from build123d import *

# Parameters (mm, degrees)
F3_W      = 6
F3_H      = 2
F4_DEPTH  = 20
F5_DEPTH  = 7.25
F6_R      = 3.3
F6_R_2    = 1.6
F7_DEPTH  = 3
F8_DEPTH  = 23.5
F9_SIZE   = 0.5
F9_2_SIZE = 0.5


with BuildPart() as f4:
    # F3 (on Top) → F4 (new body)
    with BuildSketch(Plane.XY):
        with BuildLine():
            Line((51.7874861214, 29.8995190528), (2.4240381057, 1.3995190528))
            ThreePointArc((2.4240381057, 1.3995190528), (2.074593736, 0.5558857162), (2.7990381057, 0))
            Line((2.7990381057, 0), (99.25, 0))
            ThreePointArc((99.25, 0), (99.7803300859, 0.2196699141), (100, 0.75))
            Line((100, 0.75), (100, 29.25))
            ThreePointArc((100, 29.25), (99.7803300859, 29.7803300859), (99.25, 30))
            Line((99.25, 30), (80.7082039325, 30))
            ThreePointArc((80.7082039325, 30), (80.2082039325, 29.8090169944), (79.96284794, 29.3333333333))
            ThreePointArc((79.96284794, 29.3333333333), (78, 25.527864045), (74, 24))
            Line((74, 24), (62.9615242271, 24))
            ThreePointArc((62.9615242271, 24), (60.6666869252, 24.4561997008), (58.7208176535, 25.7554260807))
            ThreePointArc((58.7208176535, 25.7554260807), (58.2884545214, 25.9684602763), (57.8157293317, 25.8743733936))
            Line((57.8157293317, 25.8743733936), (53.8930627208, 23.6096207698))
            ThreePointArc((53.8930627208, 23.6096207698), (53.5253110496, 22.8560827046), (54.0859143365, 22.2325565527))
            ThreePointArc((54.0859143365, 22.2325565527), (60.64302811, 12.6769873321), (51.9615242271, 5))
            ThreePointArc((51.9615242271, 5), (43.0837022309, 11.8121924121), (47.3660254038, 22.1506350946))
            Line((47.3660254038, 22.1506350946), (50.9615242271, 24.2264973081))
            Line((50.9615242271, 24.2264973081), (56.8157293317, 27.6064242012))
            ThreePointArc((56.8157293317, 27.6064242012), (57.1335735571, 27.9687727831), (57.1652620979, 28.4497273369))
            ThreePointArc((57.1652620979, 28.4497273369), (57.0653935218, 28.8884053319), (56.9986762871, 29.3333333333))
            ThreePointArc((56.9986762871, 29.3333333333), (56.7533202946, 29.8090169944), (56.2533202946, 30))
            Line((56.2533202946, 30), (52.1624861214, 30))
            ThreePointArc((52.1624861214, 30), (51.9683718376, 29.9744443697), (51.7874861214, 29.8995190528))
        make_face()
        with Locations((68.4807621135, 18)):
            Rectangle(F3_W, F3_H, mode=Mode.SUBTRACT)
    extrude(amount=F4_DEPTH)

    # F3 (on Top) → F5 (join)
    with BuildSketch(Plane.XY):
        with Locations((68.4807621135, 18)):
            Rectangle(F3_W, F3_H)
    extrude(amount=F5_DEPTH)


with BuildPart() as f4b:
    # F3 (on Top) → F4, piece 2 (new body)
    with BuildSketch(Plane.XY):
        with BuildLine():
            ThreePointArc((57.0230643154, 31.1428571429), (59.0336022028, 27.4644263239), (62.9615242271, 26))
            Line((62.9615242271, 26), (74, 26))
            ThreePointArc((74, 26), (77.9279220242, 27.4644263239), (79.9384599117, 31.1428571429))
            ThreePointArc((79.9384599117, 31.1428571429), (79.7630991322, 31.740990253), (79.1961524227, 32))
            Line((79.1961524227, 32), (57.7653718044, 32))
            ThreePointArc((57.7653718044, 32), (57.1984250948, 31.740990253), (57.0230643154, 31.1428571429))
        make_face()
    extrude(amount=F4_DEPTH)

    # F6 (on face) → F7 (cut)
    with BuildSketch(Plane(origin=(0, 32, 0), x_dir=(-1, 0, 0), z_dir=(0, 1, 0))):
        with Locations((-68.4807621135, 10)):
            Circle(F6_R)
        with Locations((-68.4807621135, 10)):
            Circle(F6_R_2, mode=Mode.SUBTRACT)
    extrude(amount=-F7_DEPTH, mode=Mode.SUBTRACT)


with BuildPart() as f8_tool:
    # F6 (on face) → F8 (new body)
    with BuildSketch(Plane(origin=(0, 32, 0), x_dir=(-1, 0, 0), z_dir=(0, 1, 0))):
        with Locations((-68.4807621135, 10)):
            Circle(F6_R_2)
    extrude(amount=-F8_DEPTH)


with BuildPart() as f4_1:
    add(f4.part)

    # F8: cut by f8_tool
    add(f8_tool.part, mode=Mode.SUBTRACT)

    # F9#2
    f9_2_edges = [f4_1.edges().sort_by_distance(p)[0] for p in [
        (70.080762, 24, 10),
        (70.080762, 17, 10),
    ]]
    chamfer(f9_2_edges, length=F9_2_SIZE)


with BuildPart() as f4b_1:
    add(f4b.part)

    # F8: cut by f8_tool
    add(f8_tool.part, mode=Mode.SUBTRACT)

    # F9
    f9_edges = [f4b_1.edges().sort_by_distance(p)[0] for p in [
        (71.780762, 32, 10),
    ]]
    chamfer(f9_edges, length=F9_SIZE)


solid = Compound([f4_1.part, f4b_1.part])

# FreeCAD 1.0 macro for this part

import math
import FreeCAD as App
import Part
import Sketcher
Q = App.Units.Quantity


def edges_at(feature, points):
    """Names of the edges that pass closest to the given points."""
    edges = feature.Shape.Edges
    near = lambda p: min(range(len(edges)), key=lambda i: edges[i].distToShape(Part.Vertex(*p))[0])
    return sorted({f"Edge{near(p) + 1}" for p in points})

doc = App.newDocument("Part")
body = doc.addObject("PartDesign::Body", "Body")

# Sketch on XY plane
sketch1 = body.newObject("Sketcher::SketchObject", "Sketch")
sketch1.AttachmentSupport = (doc.getObject("XY_Plane"), [""])
sketch1.MapMode = "FlatFace"
sketch1.addGeometry([
    Part.LineSegment(App.Vector(51.79, 29.9, 0), App.Vector(2.42, 1.4, 0)),  # 0
    Part.ArcOfCircle(Part.Circle(App.Vector(2.8, 0.75, 0), App.Vector(0, 0, 1), 0.75), math.radians(120), math.radians(270)),  # 1
    Part.LineSegment(App.Vector(2.8, 0, 0), App.Vector(99.25, 0, 0)),  # 2
    Part.ArcOfCircle(Part.Circle(App.Vector(99.25, 0.75, 0), App.Vector(0, 0, 1), 0.75), math.radians(-90), math.radians(0)),  # 3
    Part.LineSegment(App.Vector(100, 0.75, 0), App.Vector(100, 29.25, 0)),  # 4
    Part.ArcOfCircle(Part.Circle(App.Vector(99.25, 29.25, 0), App.Vector(0, 0, 1), 0.75), math.radians(0), math.radians(90)),  # 5
    Part.LineSegment(App.Vector(99.25, 30, 0), App.Vector(80.71, 30, 0)),  # 6
    Part.ArcOfCircle(Part.Circle(App.Vector(80.71, 29.25, 0), App.Vector(0, 0, 1), 0.75), math.radians(90), math.radians(174)),  # 7
    Part.ArcOfCircle(Part.Circle(App.Vector(74, 30, 0), App.Vector(0, 0, 1), 6), math.radians(-90), math.radians(-6)),  # 8
    Part.LineSegment(App.Vector(74, 24, 0), App.Vector(62.96, 24, 0)),  # 9
    Part.ArcOfCircle(Part.Circle(App.Vector(62.96, 30, 0), App.Vector(0, 0, 1), 6), math.radians(-135), math.radians(-90)),  # 10
    Part.ArcOfCircle(Part.Circle(App.Vector(58.19, 25.22, 0), App.Vector(0, 0, 1), 0.75), math.radians(45), math.radians(120)),  # 11
    Part.LineSegment(App.Vector(57.82, 25.87, 0), App.Vector(53.89, 23.61, 0)),  # 12
    Part.ArcOfCircle(Part.Circle(App.Vector(54.27, 22.96, 0), App.Vector(0, 0, 1), 0.75), math.radians(120), math.radians(256)),  # 13
    Part.ArcOfCircle(Part.Circle(App.Vector(51.96, 13.75, 0), App.Vector(0, 0, 1), 8.75), math.radians(-90), math.radians(76)),  # 14
    Part.ArcOfCircle(Part.Circle(App.Vector(51.96, 14.19, 0), App.Vector(0, 0, 1), 9.19), math.radians(120), math.radians(270)),  # 15
    Part.LineSegment(App.Vector(47.37, 22.15, 0), App.Vector(50.96, 24.23, 0)),  # 16
    Part.LineSegment(App.Vector(50.96, 24.23, 0), App.Vector(56.82, 27.61, 0)),  # 17
    Part.ArcOfCircle(Part.Circle(App.Vector(56.44, 28.26, 0), App.Vector(0, 0, 1), 0.75), math.radians(-60), math.radians(15)),  # 18
    Part.ArcOfCircle(Part.Circle(App.Vector(62.96, 30, 0), App.Vector(0, 0, 1), 6), math.radians(-173.62), math.radians(-165.03)),  # 19
    Part.ArcOfCircle(Part.Circle(App.Vector(56.25, 29.25, 0), App.Vector(0, 0, 1), 0.75), math.radians(6), math.radians(90)),  # 20
    Part.LineSegment(App.Vector(56.25, 30, 0), App.Vector(52.16, 30, 0)),  # 21
    Part.ArcOfCircle(Part.Circle(App.Vector(52.16, 29.25, 0), App.Vector(0, 0, 1), 0.75), math.radians(90), math.radians(120)),  # 22
    Part.LineSegment(App.Vector(71.48, 17, 0), App.Vector(65.48, 17, 0)),  # 23
    Part.LineSegment(App.Vector(65.48, 17, 0), App.Vector(65.48, 19, 0)),  # 24
    Part.LineSegment(App.Vector(65.48, 19, 0), App.Vector(71.48, 19, 0)),  # 25
    Part.LineSegment(App.Vector(71.48, 19, 0), App.Vector(71.48, 17, 0)),  # 26
], False)
sketch1.addConstraint([
    Sketcher.Constraint("Tangent", 0, 2, 1, 1),
    Sketcher.Constraint("Tangent", 1, 2, 2, 1),
    Sketcher.Constraint("Tangent", 2, 2, 3, 1),
    Sketcher.Constraint("Tangent", 3, 2, 4, 1),
    Sketcher.Constraint("Tangent", 4, 2, 5, 1),
    Sketcher.Constraint("Tangent", 5, 2, 6, 1),
    Sketcher.Constraint("Tangent", 6, 2, 7, 1),
    Sketcher.Constraint("Tangent", 7, 2, 8, 2),
    Sketcher.Constraint("Tangent", 8, 1, 9, 1),
    Sketcher.Constraint("Tangent", 9, 2, 10, 2),
    Sketcher.Constraint("Tangent", 10, 1, 11, 1),
    Sketcher.Constraint("Tangent", 11, 2, 12, 1),
    Sketcher.Constraint("Tangent", 12, 2, 13, 1),
    Sketcher.Constraint("Tangent", 13, 2, 14, 2),
    Sketcher.Constraint("Tangent", 14, 1, 15, 2),
    Sketcher.Constraint("Tangent", 15, 1, 16, 1),
    Sketcher.Constraint("Coincident", 16, 2, 17, 1),
    Sketcher.Constraint("Tangent", 17, 2, 18, 1),
    Sketcher.Constraint("Tangent", 18, 2, 19, 2),
    Sketcher.Constraint("Tangent", 19, 1, 20, 1),
    Sketcher.Constraint("Tangent", 20, 2, 21, 1),
    Sketcher.Constraint("Tangent", 21, 2, 22, 1),
    Sketcher.Constraint("Tangent", 22, 2, 0, 1),
    Sketcher.Constraint("Coincident", 23, 2, 24, 1),
    Sketcher.Constraint("Coincident", 24, 2, 25, 1),
    Sketcher.Constraint("Coincident", 25, 2, 26, 1),
    Sketcher.Constraint("Coincident", 26, 2, 23, 1),
    Sketcher.Constraint("Horizontal", 2),
    Sketcher.Constraint("Vertical", 4),
    Sketcher.Constraint("Horizontal", 6),
    Sketcher.Constraint("Horizontal", 9),
    Sketcher.Constraint("Horizontal", 21),
    Sketcher.Constraint("Horizontal", 23),
    Sketcher.Constraint("Vertical", 24),
    Sketcher.Constraint("Horizontal", 25),
    Sketcher.Constraint("Vertical", 26),
    Sketcher.Constraint("Coincident", 19, 3, 10, 3),
    Sketcher.Constraint("Equal", 1, 3),
    Sketcher.Constraint("Equal", 3, 5),
    Sketcher.Constraint("Equal", 5, 7),
    Sketcher.Constraint("Equal", 8, 10),
    Sketcher.Constraint("Equal", 7, 11),
    Sketcher.Constraint("Equal", 11, 13),
    Sketcher.Constraint("Equal", 13, 18),
    Sketcher.Constraint("Equal", 10, 19),
    Sketcher.Constraint("Equal", 18, 20),
    Sketcher.Constraint("Equal", 20, 22),
    Sketcher.Constraint("PointOnObject", 1, 2, -1),
    Sketcher.Constraint("Parallel", 0, 12),
    Sketcher.Constraint("Parallel", 12, 16),
    Sketcher.Constraint("Parallel", 16, 17),
    Sketcher.Constraint("Horizontal", 7, 3, 20, 3),
    Sketcher.Constraint("Horizontal", 19, 3, 5, 2),
    Sketcher.Constraint("Vertical", 14, 3, 15, 3),
    Sketcher.Constraint("Radius", 8, 6.0),
    Sketcher.Constraint("DistanceX", 23, 2, 23, 1, 6.0),
    Sketcher.Constraint("DistanceY", 24, 1, 24, 2, 2.0),
    Sketcher.Constraint("Angle", 0, Q("-150 deg")),
    Sketcher.Constraint("Radius", 1, 0.75),
    Sketcher.Constraint("Distance", 0, 57.0),
    Sketcher.Constraint("DistanceX", -1, 1, 8, 3, 74.0),
    Sketcher.Constraint("DistanceX", -1, 1, 3, 2, 100.0),
    Sketcher.Constraint("DistanceY", -1, 1, 14, 1, 5.0),
    Sketcher.Constraint("DistanceY", -1, 1, 23, 2, 17.0),
    Sketcher.Constraint("DistanceX", 14, 3, 10, 3, 11.0),
    Sketcher.Constraint("DistanceX", 17, 2, 11, 2, 1.0),
    Sketcher.Constraint("Radius", 14, 8.747223),
    Sketcher.Constraint("Radius", 15, 9.190998),
    Sketcher.Constraint("DistanceX", 2, 1, 2, 2, 96.450962),
    Sketcher.Constraint("DistanceX", 15, 1, 16, 2, 3.595499),
    Sketcher.Constraint("DistanceX", 9, 2, 9, 1, 11.038476),
    Sketcher.Constraint("DistanceX", -1, 1, 23, 2, 65.480762),
])
pad1 = body.newObject("PartDesign::Pad", "Pad")
pad1.Profile = sketch1
pad1.Length = 20

# Sketch on XY plane
sketch2 = body.newObject("Sketcher::SketchObject", "Sketch001")
sketch2.AttachmentSupport = (doc.getObject("XY_Plane"), [""])
sketch2.MapMode = "FlatFace"
sketch2.addGeometry([
    Part.LineSegment(App.Vector(65.5, 19, 0), App.Vector(65.5, 17, 0)),
    Part.LineSegment(App.Vector(65.5, 17, 0), App.Vector(71.5, 17, 0)),
    Part.LineSegment(App.Vector(71.5, 17, 0), App.Vector(71.5, 19, 0)),
    Part.LineSegment(App.Vector(71.5, 19, 0), App.Vector(65.5, 19, 0)),
], False)
sketch2.addConstraint([
    Sketcher.Constraint("Coincident", 0, 2, 1, 1),
    Sketcher.Constraint("Coincident", 1, 2, 2, 1),
    Sketcher.Constraint("Coincident", 2, 2, 3, 1),
    Sketcher.Constraint("Coincident", 3, 2, 0, 1),
    Sketcher.Constraint("Vertical", 0),
    Sketcher.Constraint("Horizontal", 1),
    Sketcher.Constraint("Vertical", 2),
    Sketcher.Constraint("Horizontal", 3),
    Sketcher.Constraint("DistanceX", 1, 1, 1, 2, 6.0),
    Sketcher.Constraint("DistanceY", 0, 2, 0, 1, 2.0),
    Sketcher.Constraint("DistanceY", -1, 1, 0, 2, 17.0),
    Sketcher.Constraint("DistanceX", -1, 1, 0, 2, 65.480762),
])
pad2 = body.newObject("PartDesign::Pad", "Pad001")
pad2.Profile = sketch2
pad2.Length = 7.25
body2 = doc.addObject("PartDesign::Body", "Body001")

# Sketch on XY plane
sketch3 = body2.newObject("Sketcher::SketchObject", "Sketch002")
sketch3.AttachmentSupport = (doc.getObject("XY_Plane001"), [""])
sketch3.MapMode = "FlatFace"
sketch3.addGeometry([
    Part.ArcOfCircle(Part.Circle(App.Vector(63, 32, 0), App.Vector(0, 0, 1), 6), math.radians(-172), math.radians(-90)),  # 0
    Part.LineSegment(App.Vector(63, 26, 0), App.Vector(74, 26, 0)),  # 1
    Part.ArcOfCircle(Part.Circle(App.Vector(74, 32, 0), App.Vector(0, 0, 1), 6), math.radians(-90), math.radians(-8)),  # 2
    Part.ArcOfCircle(Part.Circle(App.Vector(79.2, 31.2, 0), App.Vector(0, 0, 1), 0.8), math.radians(-8), math.radians(90)),  # 3
    Part.LineSegment(App.Vector(79.2, 32, 0), App.Vector(57.8, 32, 0)),  # 4
    Part.ArcOfCircle(Part.Circle(App.Vector(57.8, 31.2, 0), App.Vector(0, 0, 1), 0.8), math.radians(90), math.radians(188)),  # 5
], False)
sketch3.addConstraint([
    Sketcher.Constraint("Tangent", 0, 2, 1, 1),
    Sketcher.Constraint("Tangent", 1, 2, 2, 1),
    Sketcher.Constraint("Tangent", 2, 2, 3, 1),
    Sketcher.Constraint("Tangent", 3, 2, 4, 1),
    Sketcher.Constraint("Tangent", 4, 2, 5, 1),
    Sketcher.Constraint("Tangent", 5, 2, 0, 1),
    Sketcher.Constraint("Horizontal", 1),
    Sketcher.Constraint("Horizontal", 4),
    Sketcher.Constraint("Equal", 0, 2),
    Sketcher.Constraint("Equal", 3, 5),
    Sketcher.Constraint("Horizontal", 2, 3, 3, 2),
    Sketcher.Constraint("Radius", 0, 6.0),
    Sketcher.Constraint("Radius", 3, 0.75),
    Sketcher.Constraint("DistanceY", -1, 1, 0, 3, 32.0),
    Sketcher.Constraint("DistanceX", -1, 1, 2, 3, 74.0),
    Sketcher.Constraint("DistanceX", 4, 2, 4, 1, 21.430781),
])
pad3 = body2.newObject("PartDesign::Pad", "Pad002")
pad3.Profile = sketch3
pad3.Length = 20

# Sketch on XZ plane
sketch4 = body2.newObject("Sketcher::SketchObject", "Sketch003")
sketch4.AttachmentSupport = (doc.getObject("XZ_Plane001"), [""])
sketch4.MapMode = "FlatFace"
sketch4.AttachmentOffset = App.Placement(App.Vector(0, 0, -32), App.Rotation())
sketch4.addGeometry([
    Part.Circle(App.Vector(68.5, 10, 0), App.Vector(0, 0, 1), 3.3),
    Part.Circle(App.Vector(68.5, 10, 0), App.Vector(0, 0, 1), 1.6),
], False)
sketch4.addConstraint([
    Sketcher.Constraint("Coincident", 1, 3, 0, 3),
    Sketcher.Constraint("Diameter", 0, 6.6),
    Sketcher.Constraint("Diameter", 1, 3.2),
    Sketcher.Constraint("DistanceY", -1, 1, 0, 3, 10.0),
    Sketcher.Constraint("DistanceX", -1, 1, 0, 3, 68.480762),
])
pocket1 = body2.newObject("PartDesign::Pocket", "Pocket")
pocket1.Profile = sketch4
pocket1.Length = 3
pocket1.Reversed = True
body3 = doc.addObject("PartDesign::Body", "Body002")

# Sketch on XZ plane
sketch5 = body3.newObject("Sketcher::SketchObject", "Sketch004")
sketch5.AttachmentSupport = (doc.getObject("XZ_Plane002"), [""])
sketch5.MapMode = "FlatFace"
sketch5.AttachmentOffset = App.Placement(App.Vector(0, 0, -32), App.Rotation())
sketch5.addGeometry(Part.Circle(App.Vector(68.5, 10, 0), App.Vector(0, 0, 1), 1.6), False)
sketch5.addConstraint([
    Sketcher.Constraint("Diameter", 0, 3.2),
    Sketcher.Constraint("DistanceY", -1, 1, 0, 3, 10.0),
    Sketcher.Constraint("DistanceX", -1, 1, 0, 3, 68.480762),
])
pad4 = body3.newObject("PartDesign::Pad", "Pad003")
pad4.Profile = sketch5
pad4.Length = 23.5
doc.recompute()

body4 = doc.addObject("PartDesign::Body", "Body003")
body4.BaseFeature = body3
boolean = body.newObject("PartDesign::Boolean", "Boolean")
boolean.Type = "Cut"
boolean.addObjects([body4])
doc.recompute()

chamfer = body.newObject("PartDesign::Chamfer", "Chamfer")
chamfer.Base = (boolean, edges_at(boolean, [(70.081, 24, 10), (70.081, 17, 10)]))
chamfer.Size = 0.5
doc.recompute()

boolean2 = body2.newObject("PartDesign::Boolean", "Boolean001")
boolean2.Type = "Cut"
boolean2.addObjects([body3])
doc.recompute()

chamfer2 = body2.newObject("PartDesign::Chamfer", "Chamfer001")
chamfer2.Base = (boolean2, edges_at(boolean2, [(71.781, 32, 10)]))
chamfer2.Size = 0.5

doc.recompute()
